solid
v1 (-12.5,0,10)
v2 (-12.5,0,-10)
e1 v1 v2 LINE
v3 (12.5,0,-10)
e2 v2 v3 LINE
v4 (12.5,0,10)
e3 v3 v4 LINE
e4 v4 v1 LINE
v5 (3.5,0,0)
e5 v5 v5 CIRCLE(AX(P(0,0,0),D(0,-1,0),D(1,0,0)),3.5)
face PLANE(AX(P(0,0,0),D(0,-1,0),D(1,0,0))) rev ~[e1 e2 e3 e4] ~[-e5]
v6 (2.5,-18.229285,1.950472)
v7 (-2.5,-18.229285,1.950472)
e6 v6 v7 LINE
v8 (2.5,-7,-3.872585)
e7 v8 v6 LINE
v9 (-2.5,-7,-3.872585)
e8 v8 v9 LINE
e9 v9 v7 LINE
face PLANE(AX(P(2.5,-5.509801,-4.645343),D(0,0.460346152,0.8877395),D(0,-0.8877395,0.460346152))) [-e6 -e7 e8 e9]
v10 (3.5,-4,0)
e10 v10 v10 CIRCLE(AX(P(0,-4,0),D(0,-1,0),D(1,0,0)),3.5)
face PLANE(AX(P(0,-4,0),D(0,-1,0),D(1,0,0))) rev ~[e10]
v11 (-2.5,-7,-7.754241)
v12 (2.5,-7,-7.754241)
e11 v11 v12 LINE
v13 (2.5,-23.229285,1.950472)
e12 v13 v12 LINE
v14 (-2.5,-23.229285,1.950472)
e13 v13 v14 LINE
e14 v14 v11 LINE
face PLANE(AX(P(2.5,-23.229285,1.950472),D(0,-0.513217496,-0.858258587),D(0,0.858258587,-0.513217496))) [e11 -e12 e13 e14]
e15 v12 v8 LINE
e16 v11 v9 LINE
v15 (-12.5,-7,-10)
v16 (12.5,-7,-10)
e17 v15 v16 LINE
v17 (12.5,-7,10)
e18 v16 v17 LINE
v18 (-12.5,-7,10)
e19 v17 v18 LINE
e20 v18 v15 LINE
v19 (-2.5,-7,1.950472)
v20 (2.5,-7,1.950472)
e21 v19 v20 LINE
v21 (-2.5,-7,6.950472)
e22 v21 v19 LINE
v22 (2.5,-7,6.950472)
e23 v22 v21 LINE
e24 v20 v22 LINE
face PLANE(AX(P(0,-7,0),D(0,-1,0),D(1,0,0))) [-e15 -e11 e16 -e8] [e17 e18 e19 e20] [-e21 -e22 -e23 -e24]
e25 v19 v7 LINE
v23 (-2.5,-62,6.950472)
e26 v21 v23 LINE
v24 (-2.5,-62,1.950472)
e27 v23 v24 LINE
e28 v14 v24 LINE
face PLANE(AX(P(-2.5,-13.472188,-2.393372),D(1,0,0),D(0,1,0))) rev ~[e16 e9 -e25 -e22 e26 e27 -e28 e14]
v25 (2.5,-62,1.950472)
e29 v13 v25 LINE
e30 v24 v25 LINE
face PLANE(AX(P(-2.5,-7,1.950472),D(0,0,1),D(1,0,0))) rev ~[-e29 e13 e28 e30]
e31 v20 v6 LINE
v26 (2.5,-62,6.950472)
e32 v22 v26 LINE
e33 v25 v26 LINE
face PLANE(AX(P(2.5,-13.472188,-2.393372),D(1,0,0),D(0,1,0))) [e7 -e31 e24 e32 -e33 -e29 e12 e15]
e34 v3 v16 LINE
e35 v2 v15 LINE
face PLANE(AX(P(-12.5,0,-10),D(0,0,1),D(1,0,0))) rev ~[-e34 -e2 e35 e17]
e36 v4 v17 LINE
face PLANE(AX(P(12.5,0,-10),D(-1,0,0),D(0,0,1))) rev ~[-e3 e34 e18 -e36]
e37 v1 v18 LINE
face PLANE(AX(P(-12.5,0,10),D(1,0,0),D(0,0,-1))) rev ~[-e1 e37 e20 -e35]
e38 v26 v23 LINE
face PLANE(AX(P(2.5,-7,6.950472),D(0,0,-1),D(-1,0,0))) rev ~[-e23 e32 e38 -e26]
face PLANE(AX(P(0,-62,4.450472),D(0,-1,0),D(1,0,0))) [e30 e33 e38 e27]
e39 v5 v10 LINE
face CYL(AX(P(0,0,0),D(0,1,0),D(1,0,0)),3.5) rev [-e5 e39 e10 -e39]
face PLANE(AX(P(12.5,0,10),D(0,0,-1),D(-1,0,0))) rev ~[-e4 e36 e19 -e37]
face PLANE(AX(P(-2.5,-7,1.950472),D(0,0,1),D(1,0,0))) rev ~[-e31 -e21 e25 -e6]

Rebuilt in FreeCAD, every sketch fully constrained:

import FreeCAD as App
import Part
import Sketcher

V = App.Vector
Q = App.Units.Quantity

doc = App.newDocument("Part")
body = doc.addObject("PartDesign::Body", "Body")

# Sketch on XZ plane
sketch1 = doc.addObject("Sketcher::SketchObject", "Sketch")
body.addObject(sketch1)
sketch1.AttachmentSupport = (doc.XZ_Plane, [""])
sketch1.MapMode = "FlatFace"
sketch1.addGeometry([
    Part.LineSegment(V(12, 10, 0), V(-12, 10, 0)),
    Part.LineSegment(V(-12, 10, 0), V(-12, -10, 0)),
    Part.LineSegment(V(-12, -10, 0), V(12, -10, 0)),
    Part.LineSegment(V(12, -10, 0), V(12, 10, 0)),
], False)
sketch1.addConstraint([
    Sketcher.Constraint("Coincident", 0, 2, 1, 1),
    Sketcher.Constraint("Coincident", 1, 2, 2, 1),
    Sketcher.Constraint("Coincident", 2, 2, 3, 1),
    Sketcher.Constraint("Coincident", 3, 2, 0, 1),
    Sketcher.Constraint("Horizontal", 0),
    Sketcher.Constraint("Vertical", 1),
    Sketcher.Constraint("Horizontal", 2),
    Sketcher.Constraint("Vertical", 3),
    Sketcher.Constraint("Symmetric", 0, 2, 2, 2, -1, 1),
    Sketcher.Constraint("DistanceX", 0, 2, 0, 1, Q("25 mm")),
    Sketcher.Constraint("DistanceY", 1, 2, 1, 1, Q("20 mm")),
])
pad1 = doc.addObject("PartDesign::Pad", "Pad")
body.addObject(pad1)
pad1.Profile = sketch1
pad1.Length = 7

# Sketch on XZ plane
sketch2 = doc.addObject("Sketcher::SketchObject", "Sketch001")
body.addObject(sketch2)
sketch2.AttachmentSupport = (doc.XZ_Plane, [""])
sketch2.MapMode = "FlatFace"
sketch2.addGeometry(Part.Circle(V(0, 0, 0), V(0, 0, 1), 3.5), False)
sketch2.addConstraint([
    Sketcher.Constraint("Coincident", 0, 3, -1, 1),
    Sketcher.Constraint("Diameter", 0, Q("7 mm")),
])
pocket1 = doc.addObject("PartDesign::Pocket", "Pocket")
body.addObject(pocket1)
pocket1.Profile = sketch2
pocket1.Length = 4
pocket1.Reversed = True

# Sketch on XZ plane
sketch3 = doc.addObject("Sketcher::SketchObject", "Sketch002")
body.addObject(sketch3)
sketch3.AttachmentSupport = (doc.XZ_Plane, [""])
sketch3.MapMode = "FlatFace"
sketch3.AttachmentOffset = App.Placement(V(0, 0, 7), App.Rotation())
sketch3.addGeometry([
    Part.LineSegment(V(2, 7, 0), V(-2, 7, 0)),
    Part.LineSegment(V(-2, 7, 0), V(-2, 2, 0)),
    Part.LineSegment(V(-2, 2, 0), V(2, 2, 0)),
    Part.LineSegment(V(2, 2, 0), V(2, 7, 0)),
], False)
sketch3.addConstraint([
    Sketcher.Constraint("Coincident", 0, 2, 1, 1),
    Sketcher.Constraint("Coincident", 1, 2, 2, 1),
    Sketcher.Constraint("Coincident", 2, 2, 3, 1),
    Sketcher.Constraint("Coincident", 3, 2, 0, 1),
    Sketcher.Constraint("Horizontal", 0),
    Sketcher.Constraint("Vertical", 1),
    Sketcher.Constraint("Horizontal", 2),
    Sketcher.Constraint("Vertical", 3),
    Sketcher.Constraint("Equal", 2, 1),
    Sketcher.Constraint("DistanceX", 0, 2, 0, 1, Q("5 mm")),
    Sketcher.Constraint("DistanceX", 0, 2, -1, 1, Q("2.5 mm")),
    Sketcher.Constraint("DistanceY", -1, 1, 0, 2, Q("6.950472 mm")),
])
pad2 = doc.addObject("PartDesign::Pad", "Pad001")
body.addObject(pad2)
pad2.Profile = sketch3
pad2.Length = 55

# Sketch on YZ plane
sketch4 = doc.addObject("Sketcher::SketchObject", "Sketch003")
body.addObject(sketch4)
sketch4.AttachmentSupport = (doc.YZ_Plane, [""])
sketch4.MapMode = "FlatFace"
sketch4.AttachmentOffset = App.Placement(V(0, 0, 2.5), App.Rotation())
sketch4.addGeometry([
    Part.LineSegment(V(-5.5, -4.6, 0), V(-18.2, 2, 0)),
    Part.LineSegment(V(-18.2, 2, 0), V(-23.2, 2, 0)),
    Part.LineSegment(V(-23.2, 2, 0), V(-5.5, -8.6, 0)),
    Part.LineSegment(V(-5.5, -8.6, 0), V(-5.5, -4.6, 0)),
], False)
sketch4.addConstraint([
    Sketcher.Constraint("Coincident", 0, 2, 1, 1),
    Sketcher.Constraint("Coincident", 1, 2, 2, 1),
    Sketcher.Constraint("Coincident", 2, 2, 3, 1),
    Sketcher.Constraint("Coincident", 3, 2, 0, 1),
    Sketcher.Constraint("Horizontal", 1),
    Sketcher.Constraint("Vertical", 3),
    Sketcher.Constraint("DistanceX", 1, 2, 1, 1, Q("5 mm")),
    Sketcher.Constraint("DistanceY", 3, 1, 3, 2, Q("4 mm")),
    Sketcher.Constraint("DistanceX", 2, 2, -1, 1, Q("5.509801 mm")),
    Sketcher.Constraint("Distance", 0, Q("14.327946 mm")),
    Sketcher.Constraint("Distance", 2, Q("20.645857 mm")),
    Sketcher.Constraint("DistanceY", -1, 1, 0, 2, Q("1.950472 mm")),
])
pad3 = doc.addObject("PartDesign::Pad", "Pad002")
body.addObject(pad3)
pad3.Profile = sketch4
pad3.Length = 5
pad3.Reversed = True

doc.recompute()
